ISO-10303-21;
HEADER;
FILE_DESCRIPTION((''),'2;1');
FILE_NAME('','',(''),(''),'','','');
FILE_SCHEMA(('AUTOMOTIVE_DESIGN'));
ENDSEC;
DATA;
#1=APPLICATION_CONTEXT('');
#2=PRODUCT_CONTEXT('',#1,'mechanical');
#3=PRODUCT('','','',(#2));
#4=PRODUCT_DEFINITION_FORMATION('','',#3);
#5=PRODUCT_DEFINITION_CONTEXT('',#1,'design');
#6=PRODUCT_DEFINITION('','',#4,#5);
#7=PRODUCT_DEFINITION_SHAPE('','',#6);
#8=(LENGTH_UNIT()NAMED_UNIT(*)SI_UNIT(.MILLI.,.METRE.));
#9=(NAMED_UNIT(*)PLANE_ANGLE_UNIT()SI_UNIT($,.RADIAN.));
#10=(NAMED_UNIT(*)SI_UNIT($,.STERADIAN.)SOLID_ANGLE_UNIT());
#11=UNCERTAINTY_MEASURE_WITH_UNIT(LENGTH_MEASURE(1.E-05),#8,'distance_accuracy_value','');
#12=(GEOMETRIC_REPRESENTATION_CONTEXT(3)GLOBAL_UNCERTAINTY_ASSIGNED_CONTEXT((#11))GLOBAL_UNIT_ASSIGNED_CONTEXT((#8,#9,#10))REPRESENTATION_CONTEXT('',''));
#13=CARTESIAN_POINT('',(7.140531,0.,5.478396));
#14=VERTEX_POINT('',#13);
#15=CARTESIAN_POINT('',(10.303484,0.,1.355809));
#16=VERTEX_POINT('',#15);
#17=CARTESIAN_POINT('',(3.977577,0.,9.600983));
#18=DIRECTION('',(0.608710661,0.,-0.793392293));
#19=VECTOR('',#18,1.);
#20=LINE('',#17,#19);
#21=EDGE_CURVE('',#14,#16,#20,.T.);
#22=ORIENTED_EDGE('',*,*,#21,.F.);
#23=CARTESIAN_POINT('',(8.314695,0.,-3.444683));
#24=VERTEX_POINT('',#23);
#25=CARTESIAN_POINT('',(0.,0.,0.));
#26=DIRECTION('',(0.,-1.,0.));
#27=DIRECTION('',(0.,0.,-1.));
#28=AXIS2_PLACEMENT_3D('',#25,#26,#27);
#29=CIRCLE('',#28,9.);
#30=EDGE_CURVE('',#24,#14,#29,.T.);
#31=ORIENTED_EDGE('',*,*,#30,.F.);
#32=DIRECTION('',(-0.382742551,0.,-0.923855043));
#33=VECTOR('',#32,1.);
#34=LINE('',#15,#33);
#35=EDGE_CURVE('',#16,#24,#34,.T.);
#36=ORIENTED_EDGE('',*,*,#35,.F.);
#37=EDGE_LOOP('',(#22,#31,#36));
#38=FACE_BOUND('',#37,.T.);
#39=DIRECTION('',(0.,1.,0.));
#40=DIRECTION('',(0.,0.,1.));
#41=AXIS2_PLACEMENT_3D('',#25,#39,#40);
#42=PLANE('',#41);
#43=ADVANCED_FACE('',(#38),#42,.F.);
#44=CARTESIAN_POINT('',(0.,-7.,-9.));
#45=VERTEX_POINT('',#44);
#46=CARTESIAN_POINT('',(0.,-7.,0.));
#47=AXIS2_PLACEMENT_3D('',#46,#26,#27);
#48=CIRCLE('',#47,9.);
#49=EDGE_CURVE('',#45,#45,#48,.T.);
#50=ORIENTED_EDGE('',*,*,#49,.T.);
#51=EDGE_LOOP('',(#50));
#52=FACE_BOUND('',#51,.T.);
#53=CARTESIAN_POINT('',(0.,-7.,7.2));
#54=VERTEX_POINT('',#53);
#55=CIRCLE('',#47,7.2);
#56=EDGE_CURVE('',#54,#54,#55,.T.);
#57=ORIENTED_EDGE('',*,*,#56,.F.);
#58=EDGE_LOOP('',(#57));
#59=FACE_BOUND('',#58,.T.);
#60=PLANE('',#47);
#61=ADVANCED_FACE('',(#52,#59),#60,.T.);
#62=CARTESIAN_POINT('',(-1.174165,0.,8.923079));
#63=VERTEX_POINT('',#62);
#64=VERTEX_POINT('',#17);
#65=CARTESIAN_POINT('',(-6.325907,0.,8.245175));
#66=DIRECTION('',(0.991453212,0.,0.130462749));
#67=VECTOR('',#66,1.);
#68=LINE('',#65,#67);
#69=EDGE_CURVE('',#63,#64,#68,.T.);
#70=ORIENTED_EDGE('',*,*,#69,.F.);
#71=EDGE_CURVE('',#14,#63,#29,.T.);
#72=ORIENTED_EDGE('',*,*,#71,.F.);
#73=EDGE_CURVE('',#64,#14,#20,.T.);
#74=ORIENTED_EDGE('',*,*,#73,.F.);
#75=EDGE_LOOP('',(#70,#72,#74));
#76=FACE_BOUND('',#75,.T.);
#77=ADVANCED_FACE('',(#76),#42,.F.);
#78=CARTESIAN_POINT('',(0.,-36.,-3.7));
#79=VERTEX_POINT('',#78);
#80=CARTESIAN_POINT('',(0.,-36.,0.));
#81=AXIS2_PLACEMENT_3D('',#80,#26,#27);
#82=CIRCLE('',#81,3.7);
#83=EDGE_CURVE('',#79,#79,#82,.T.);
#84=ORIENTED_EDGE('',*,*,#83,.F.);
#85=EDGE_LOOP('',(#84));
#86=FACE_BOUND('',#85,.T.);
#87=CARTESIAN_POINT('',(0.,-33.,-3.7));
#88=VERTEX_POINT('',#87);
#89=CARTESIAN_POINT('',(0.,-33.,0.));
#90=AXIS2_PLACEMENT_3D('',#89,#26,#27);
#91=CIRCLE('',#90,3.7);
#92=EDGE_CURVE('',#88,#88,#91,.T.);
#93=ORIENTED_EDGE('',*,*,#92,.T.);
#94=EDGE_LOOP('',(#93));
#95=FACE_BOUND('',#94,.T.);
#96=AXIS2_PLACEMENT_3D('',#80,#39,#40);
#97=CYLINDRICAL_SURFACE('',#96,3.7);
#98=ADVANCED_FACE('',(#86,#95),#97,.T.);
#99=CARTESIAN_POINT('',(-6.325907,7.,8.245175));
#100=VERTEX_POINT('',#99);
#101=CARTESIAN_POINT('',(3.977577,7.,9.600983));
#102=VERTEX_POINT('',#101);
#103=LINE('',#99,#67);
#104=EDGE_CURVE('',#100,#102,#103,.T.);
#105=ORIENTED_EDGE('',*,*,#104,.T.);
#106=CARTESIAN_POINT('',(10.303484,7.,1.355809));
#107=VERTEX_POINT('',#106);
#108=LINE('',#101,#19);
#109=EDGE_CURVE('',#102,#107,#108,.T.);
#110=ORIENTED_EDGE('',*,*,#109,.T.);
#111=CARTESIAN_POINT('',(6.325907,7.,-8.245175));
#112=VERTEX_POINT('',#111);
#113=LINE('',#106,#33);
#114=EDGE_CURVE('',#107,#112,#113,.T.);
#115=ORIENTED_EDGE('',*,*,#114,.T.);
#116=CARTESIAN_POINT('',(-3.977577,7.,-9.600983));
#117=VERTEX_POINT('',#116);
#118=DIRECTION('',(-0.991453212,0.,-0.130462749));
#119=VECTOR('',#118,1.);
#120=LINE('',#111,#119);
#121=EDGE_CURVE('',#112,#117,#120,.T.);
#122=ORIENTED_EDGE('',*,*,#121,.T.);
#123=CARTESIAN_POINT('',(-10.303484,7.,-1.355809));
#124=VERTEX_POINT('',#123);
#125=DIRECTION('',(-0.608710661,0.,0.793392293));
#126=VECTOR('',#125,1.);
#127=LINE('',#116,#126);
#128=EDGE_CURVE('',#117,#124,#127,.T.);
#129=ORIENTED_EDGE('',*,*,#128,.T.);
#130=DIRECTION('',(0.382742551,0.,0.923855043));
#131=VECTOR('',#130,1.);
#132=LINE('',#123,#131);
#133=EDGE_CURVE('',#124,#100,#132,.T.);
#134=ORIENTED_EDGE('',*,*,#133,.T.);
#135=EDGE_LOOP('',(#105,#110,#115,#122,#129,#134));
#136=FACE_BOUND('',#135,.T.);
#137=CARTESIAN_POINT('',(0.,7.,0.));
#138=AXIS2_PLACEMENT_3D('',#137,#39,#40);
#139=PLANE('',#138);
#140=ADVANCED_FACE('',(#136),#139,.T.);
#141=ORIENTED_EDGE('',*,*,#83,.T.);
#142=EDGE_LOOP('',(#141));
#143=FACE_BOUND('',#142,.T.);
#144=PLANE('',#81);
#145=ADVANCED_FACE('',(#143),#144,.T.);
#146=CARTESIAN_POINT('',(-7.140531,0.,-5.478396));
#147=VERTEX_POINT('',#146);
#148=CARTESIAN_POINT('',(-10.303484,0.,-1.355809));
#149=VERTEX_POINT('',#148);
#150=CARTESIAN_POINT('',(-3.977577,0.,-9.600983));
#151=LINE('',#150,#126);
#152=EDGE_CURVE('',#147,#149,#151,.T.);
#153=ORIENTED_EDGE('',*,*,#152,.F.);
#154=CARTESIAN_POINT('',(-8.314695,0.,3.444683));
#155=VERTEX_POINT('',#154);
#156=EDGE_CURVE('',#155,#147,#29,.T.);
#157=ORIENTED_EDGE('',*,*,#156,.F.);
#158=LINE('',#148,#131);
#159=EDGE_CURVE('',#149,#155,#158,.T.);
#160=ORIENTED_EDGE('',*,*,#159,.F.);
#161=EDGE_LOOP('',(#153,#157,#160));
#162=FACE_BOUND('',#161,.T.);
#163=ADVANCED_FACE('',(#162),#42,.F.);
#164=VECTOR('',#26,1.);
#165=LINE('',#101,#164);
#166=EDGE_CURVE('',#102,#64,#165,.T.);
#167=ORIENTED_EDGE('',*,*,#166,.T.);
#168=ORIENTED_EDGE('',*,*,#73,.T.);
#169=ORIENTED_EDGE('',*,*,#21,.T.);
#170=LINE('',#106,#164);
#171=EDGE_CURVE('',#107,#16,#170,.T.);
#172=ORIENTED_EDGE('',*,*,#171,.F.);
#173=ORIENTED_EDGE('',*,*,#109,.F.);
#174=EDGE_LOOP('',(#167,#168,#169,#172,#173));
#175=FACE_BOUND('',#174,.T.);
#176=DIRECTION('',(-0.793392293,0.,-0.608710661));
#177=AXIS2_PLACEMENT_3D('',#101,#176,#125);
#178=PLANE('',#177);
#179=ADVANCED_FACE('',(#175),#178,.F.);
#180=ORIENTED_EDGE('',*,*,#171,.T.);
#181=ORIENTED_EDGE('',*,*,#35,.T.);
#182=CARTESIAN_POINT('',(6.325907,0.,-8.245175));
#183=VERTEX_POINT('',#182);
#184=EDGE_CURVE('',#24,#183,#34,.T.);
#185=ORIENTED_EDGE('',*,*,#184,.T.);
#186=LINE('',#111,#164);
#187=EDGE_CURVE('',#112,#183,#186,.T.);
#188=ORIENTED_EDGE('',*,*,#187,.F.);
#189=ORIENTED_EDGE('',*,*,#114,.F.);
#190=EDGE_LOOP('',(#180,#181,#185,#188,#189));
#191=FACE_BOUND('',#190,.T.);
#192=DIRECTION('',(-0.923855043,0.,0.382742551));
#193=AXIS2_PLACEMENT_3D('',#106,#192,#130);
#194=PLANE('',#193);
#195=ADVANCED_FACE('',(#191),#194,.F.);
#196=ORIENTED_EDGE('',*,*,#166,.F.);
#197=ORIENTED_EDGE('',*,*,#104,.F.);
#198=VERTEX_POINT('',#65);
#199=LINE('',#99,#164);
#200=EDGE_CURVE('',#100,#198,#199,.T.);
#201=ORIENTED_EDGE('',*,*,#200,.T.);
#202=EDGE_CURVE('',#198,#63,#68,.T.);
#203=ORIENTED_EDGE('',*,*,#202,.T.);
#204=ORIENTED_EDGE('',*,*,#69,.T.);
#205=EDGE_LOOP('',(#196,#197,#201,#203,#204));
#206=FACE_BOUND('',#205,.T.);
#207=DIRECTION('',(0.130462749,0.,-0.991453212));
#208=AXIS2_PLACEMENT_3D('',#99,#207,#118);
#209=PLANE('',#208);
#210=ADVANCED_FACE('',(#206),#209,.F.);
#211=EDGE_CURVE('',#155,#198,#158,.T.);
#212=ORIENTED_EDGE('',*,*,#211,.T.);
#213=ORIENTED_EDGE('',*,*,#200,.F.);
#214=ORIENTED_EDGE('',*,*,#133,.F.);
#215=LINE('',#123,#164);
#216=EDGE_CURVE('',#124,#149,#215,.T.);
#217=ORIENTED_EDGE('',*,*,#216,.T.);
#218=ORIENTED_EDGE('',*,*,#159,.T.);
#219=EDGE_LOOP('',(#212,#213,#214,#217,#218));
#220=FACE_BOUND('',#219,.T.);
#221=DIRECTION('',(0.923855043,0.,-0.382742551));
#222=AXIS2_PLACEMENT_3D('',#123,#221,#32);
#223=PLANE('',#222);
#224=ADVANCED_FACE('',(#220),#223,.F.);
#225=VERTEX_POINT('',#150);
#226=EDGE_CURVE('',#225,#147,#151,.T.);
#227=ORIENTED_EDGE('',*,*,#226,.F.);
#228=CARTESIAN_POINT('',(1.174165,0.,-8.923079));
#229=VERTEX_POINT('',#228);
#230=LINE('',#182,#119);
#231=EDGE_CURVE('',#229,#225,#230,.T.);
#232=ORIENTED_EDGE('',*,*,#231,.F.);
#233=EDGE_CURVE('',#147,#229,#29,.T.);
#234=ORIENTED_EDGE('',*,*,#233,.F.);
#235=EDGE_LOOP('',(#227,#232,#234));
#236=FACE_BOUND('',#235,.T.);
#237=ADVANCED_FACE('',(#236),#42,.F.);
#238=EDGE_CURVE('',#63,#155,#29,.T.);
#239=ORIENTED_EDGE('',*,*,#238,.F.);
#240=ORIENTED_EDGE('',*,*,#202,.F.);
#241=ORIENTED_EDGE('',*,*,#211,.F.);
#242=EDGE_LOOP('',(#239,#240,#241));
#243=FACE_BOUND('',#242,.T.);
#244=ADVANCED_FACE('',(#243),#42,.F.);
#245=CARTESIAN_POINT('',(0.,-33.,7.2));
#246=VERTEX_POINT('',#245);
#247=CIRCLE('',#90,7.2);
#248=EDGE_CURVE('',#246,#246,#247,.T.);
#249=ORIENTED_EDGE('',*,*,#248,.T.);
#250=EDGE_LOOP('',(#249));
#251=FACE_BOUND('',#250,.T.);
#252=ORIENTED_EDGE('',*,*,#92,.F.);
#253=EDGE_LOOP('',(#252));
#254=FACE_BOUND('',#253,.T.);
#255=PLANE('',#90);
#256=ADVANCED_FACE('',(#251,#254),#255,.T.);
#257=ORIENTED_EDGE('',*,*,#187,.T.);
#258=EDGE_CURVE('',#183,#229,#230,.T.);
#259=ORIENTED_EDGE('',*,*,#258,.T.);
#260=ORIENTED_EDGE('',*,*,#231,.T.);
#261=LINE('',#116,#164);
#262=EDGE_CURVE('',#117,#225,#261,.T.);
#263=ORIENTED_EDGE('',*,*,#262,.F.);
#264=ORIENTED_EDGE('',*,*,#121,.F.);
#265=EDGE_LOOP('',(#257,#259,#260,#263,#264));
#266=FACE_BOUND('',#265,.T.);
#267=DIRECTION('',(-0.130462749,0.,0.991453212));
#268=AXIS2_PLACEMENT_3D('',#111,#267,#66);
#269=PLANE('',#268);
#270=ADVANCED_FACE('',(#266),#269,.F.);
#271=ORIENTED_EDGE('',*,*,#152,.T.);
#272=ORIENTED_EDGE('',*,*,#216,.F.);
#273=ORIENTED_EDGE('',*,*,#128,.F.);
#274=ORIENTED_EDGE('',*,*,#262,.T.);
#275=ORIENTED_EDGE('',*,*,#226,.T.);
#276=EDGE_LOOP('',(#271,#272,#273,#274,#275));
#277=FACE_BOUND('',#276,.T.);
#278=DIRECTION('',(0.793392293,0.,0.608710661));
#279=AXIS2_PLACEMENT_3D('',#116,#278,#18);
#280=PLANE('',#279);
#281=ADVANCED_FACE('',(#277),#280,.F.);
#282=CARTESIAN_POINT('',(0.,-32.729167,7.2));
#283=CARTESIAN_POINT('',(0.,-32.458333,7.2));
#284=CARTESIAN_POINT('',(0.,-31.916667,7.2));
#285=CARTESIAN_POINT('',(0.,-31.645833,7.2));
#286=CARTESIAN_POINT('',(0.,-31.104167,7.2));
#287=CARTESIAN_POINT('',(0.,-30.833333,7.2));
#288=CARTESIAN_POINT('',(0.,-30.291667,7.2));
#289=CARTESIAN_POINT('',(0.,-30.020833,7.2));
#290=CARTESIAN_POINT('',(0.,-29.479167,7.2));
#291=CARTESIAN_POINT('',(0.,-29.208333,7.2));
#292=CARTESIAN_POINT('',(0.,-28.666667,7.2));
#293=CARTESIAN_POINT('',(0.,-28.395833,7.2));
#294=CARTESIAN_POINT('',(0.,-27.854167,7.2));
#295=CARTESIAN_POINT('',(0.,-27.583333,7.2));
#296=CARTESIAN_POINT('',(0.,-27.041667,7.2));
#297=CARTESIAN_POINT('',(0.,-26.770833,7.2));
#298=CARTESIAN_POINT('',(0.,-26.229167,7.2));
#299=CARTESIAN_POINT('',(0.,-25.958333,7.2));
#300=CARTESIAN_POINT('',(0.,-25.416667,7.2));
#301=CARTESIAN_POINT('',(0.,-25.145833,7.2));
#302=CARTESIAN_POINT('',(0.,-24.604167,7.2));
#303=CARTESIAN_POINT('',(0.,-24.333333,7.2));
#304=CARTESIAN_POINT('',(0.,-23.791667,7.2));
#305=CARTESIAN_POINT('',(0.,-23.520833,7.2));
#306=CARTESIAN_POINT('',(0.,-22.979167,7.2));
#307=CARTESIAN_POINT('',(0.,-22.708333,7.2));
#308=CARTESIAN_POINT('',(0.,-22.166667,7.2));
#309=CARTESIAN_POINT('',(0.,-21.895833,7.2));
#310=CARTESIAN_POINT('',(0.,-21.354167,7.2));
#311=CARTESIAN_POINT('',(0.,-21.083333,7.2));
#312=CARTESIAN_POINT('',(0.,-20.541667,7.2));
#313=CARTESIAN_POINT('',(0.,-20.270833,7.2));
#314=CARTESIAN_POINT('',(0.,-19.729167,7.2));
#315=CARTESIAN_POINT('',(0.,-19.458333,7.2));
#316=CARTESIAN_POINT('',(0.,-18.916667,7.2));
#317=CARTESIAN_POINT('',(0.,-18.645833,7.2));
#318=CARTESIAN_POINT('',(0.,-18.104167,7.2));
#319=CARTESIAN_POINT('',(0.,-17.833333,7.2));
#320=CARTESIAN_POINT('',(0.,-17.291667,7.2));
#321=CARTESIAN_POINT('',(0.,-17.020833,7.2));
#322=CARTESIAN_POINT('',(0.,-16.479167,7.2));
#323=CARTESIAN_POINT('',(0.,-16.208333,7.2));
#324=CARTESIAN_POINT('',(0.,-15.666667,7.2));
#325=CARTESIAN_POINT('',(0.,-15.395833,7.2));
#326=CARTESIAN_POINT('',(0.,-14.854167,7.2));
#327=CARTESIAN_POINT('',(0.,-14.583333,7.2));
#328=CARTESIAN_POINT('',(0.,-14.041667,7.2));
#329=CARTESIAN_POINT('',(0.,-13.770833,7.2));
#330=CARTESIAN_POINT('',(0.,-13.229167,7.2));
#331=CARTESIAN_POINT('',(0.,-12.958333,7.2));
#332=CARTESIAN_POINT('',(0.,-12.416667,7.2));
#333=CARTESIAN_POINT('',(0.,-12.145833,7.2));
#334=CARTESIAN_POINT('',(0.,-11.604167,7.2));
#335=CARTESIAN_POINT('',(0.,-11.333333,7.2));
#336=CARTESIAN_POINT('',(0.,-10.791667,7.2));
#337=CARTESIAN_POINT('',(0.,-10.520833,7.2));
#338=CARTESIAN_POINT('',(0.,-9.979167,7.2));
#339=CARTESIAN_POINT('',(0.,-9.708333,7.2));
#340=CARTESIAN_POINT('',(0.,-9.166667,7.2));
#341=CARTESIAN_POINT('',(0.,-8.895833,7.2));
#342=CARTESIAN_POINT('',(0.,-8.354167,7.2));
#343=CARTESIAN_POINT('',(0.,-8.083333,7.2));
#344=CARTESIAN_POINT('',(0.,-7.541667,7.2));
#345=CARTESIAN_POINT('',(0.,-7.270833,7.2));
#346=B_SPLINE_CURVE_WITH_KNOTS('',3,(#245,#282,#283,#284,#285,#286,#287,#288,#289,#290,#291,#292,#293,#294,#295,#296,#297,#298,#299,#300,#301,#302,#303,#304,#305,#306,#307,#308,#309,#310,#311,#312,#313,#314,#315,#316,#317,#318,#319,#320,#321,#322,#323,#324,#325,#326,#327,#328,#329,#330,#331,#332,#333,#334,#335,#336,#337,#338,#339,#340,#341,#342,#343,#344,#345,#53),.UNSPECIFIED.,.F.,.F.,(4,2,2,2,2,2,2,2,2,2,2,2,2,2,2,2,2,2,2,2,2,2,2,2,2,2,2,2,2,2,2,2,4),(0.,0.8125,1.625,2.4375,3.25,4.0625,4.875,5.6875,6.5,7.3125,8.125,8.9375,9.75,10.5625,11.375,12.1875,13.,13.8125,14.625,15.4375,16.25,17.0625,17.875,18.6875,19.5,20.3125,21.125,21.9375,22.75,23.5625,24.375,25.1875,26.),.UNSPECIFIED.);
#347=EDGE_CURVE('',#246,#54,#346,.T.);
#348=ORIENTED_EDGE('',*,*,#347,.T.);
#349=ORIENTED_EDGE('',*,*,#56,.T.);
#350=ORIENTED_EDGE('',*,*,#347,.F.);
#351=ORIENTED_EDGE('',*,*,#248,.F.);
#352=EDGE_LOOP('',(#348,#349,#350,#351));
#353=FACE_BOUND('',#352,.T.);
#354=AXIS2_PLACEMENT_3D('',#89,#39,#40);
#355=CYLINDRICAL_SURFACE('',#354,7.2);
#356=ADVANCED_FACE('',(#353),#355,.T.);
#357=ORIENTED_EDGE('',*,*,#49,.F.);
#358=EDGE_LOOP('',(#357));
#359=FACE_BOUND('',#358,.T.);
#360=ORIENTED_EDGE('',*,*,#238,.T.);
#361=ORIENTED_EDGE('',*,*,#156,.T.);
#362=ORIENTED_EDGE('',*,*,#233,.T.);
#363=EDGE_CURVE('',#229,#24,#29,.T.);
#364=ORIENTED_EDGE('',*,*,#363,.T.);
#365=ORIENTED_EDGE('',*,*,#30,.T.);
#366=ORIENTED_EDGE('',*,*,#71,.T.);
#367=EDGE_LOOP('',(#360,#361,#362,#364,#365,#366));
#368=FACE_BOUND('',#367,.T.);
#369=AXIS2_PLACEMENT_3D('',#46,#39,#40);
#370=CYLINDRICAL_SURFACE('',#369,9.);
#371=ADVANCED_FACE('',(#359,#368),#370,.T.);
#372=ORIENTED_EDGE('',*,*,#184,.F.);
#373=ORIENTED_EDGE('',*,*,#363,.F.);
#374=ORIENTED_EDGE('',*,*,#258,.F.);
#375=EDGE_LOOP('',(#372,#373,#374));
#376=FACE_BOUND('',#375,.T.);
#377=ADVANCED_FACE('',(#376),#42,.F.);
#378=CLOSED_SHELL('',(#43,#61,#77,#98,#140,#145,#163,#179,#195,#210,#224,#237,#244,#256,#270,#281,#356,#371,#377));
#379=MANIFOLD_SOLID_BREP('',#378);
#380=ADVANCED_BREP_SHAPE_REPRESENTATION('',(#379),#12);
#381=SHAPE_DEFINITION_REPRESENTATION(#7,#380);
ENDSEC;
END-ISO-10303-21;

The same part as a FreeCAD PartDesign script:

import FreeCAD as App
import Part
import Sketcher

V = App.Vector
Q = App.Units.Quantity


def add_polygon(sketch, points):
    """Adds a closed chain of lines whose ends are joined by coincident constraints."""
    first, n = sketch.GeometryCount, len(points)
    for a, b in zip(points, points[1:] + points[:1]):
        sketch.addGeometry(Part.LineSegment(App.Vector(*a, 0), App.Vector(*b, 0)), False)
    for i in range(n):
        sketch.addConstraint(Sketcher.Constraint("Coincident", first + i, 2, first + (i + 1) % n, 1))

doc = App.newDocument("Part")
body = doc.addObject("PartDesign::Body", "Body")

sketch1 = body.newObject("Sketcher::SketchObject", "Sketch")
sketch1.AttachmentSupport = (doc.getObject("XZ_Plane"), [""])
sketch1.MapMode = "FlatFace"
add_polygon(sketch1, [(6, -8), (-4, -10), (-10, -1), (-6, 8), (4, 10), (10, 1)])
sketch1.addConstraint(Sketcher.Constraint("Symmetric", 0, 2, 3, 2, -1, 1))
sketch1.addConstraint(Sketcher.Constraint("Symmetric", 1, 2, 4, 2, -1, 1))
sketch1.addConstraint(Sketcher.Constraint("Symmetric", 2, 2, 5, 2, -1, 1))
sketch1.addConstraint(Sketcher.Constraint("Equal", 0, 1))
sketch1.addConstraint(Sketcher.Constraint("Equal", 1, 2))
sketch1.addConstraint(Sketcher.Constraint("DistanceY", 1, 2, -1, 1, Q("1.355809 mm")))
sketch1.addConstraint(Sketcher.Constraint("DistanceX", 2, 2, 0, 2, Q("2.348329 mm")))
sketch1.addConstraint(Sketcher.Constraint("DistanceY", 2, 2, 3, 2, Q("1.355809 mm")))
sketch1.addConstraint(Sketcher.Constraint("DistanceX", 1, 2, 3, 2, Q("14.281061 mm")))
pad1 = body.newObject("PartDesign::Pad", "Pad")
pad1.Profile = sketch1
pad1.Length = 7
pad1.Reversed = True

sketch2 = body.newObject("Sketcher::SketchObject", "Sketch001")
sketch2.AttachmentSupport = (doc.getObject("XZ_Plane"), [""])
sketch2.MapMode = "FlatFace"
sketch2.addGeometry(Part.Circle(V(0, 0, 0), V(0, 0, 1), 9), False)
sketch2.addConstraint(Sketcher.Constraint("Coincident", 0, 3, -1, 1))
sketch2.addConstraint(Sketcher.Constraint("Diameter", 0, Q("18 mm")))
pad2 = body.newObject("PartDesign::Pad", "Pad001")
pad2.Profile = sketch2
pad2.Length = 7

sketch3 = body.newObject("Sketcher::SketchObject", "Sketch002")
sketch3.AttachmentSupport = (doc.getObject("XZ_Plane"), [""])
sketch3.MapMode = "FlatFace"
sketch3.AttachmentOffset = App.Placement(V(0, 0, 7), App.Rotation())
sketch3.addGeometry(Part.Circle(V(0, 0, 0), V(0, 0, 1), 7), False)
sketch3.addConstraint(Sketcher.Constraint("Coincident", 0, 3, -1, 1))
sketch3.addConstraint(Sketcher.Constraint("Diameter", 0, Q("14.4 mm")))
pad3 = body.newObject("PartDesign::Pad", "Pad002")
pad3.Profile = sketch3
pad3.Length = 26

sketch4 = body.newObject("Sketcher::SketchObject", "Sketch003")
sketch4.AttachmentSupport = (doc.getObject("XZ_Plane"), [""])
sketch4.MapMode = "FlatFace"
sketch4.AttachmentOffset = App.Placement(V(0, 0, 33), App.Rotation())
sketch4.addGeometry(Part.Circle(V(0, 0, 0), V(0, 0, 1), 3.7), False)
sketch4.addConstraint(Sketcher.Constraint("Coincident", 0, 3, -1, 1))
sketch4.addConstraint(Sketcher.Constraint("Diameter", 0, Q("7.4 mm")))
pad4 = body.newObject("PartDesign::Pad", "Pad003")
pad4.Profile = sketch4
pad4.Length = 3

doc.recompute()
